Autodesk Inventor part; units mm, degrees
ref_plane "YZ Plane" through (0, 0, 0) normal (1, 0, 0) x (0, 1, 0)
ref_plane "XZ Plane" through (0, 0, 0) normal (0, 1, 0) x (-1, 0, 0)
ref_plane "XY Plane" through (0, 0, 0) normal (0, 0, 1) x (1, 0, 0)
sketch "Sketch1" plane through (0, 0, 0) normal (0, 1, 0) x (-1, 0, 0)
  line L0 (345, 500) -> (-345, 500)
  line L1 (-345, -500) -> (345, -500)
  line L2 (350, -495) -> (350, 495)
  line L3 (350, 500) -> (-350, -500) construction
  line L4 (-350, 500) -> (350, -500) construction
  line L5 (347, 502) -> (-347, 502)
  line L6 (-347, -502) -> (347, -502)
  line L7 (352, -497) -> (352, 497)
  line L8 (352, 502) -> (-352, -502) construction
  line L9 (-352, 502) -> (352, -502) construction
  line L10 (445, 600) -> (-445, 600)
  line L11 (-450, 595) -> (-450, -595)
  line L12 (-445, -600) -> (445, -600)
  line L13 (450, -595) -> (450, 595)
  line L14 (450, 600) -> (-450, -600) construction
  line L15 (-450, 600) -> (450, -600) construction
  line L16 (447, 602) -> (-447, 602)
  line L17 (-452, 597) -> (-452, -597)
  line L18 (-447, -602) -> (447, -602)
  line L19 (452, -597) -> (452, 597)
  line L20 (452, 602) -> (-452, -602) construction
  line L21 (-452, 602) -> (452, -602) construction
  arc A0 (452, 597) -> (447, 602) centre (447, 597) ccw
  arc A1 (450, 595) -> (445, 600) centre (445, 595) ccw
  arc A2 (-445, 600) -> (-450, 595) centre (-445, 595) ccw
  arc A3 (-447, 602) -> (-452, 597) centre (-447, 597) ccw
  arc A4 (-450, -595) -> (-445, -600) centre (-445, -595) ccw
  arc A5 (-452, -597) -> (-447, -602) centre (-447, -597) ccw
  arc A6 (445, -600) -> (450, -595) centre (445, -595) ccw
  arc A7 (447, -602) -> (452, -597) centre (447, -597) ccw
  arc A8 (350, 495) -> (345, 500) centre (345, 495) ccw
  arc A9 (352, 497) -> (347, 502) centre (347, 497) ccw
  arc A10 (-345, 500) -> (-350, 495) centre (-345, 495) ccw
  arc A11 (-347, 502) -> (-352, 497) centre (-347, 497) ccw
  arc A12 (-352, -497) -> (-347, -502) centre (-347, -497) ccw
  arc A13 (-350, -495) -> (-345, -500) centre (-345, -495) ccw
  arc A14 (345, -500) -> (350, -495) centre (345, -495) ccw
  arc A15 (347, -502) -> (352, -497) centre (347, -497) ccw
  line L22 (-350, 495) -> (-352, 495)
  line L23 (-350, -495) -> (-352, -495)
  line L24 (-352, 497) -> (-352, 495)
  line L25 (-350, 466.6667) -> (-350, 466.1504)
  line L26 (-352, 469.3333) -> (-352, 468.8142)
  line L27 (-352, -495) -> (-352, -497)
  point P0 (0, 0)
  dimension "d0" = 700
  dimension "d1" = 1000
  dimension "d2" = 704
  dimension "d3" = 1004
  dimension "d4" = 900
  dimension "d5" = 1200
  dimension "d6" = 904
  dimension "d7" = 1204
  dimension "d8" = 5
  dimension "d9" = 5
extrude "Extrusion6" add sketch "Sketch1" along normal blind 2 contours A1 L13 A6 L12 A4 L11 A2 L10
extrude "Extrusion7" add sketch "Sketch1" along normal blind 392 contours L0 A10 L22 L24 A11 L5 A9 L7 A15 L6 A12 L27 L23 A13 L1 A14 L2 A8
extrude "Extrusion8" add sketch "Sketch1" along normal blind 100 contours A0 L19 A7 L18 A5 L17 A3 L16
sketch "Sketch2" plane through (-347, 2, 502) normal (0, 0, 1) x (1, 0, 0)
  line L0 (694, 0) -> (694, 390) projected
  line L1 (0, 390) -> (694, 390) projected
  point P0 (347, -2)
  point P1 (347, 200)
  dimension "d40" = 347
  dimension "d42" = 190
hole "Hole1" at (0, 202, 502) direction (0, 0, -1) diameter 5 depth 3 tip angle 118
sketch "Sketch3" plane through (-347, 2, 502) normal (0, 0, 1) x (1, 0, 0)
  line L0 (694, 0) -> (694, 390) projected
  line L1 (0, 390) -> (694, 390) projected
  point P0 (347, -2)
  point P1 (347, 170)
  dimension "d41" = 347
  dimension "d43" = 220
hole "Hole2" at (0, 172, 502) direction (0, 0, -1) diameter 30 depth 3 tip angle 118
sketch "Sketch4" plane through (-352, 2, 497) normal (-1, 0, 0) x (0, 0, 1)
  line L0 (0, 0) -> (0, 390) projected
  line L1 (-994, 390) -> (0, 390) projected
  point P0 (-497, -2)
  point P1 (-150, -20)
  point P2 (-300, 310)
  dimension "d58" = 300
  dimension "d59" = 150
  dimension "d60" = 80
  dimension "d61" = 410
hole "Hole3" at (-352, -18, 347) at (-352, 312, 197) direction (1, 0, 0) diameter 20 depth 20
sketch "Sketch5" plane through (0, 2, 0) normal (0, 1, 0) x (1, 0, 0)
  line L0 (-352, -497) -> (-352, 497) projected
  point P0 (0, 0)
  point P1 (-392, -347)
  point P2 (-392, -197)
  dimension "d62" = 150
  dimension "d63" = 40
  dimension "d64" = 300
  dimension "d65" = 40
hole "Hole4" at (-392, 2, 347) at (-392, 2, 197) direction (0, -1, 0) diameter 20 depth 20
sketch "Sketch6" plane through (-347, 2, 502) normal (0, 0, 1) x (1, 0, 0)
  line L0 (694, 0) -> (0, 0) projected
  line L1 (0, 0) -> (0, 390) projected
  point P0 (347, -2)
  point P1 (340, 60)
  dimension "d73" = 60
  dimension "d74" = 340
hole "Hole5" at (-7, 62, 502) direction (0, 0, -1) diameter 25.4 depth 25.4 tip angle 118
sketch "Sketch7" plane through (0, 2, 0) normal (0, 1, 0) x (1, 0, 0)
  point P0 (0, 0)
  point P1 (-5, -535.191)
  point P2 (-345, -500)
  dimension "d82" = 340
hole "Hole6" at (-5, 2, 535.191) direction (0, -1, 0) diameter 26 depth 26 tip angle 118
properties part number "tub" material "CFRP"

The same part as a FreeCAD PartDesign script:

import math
import FreeCAD as App
import Part
import Sketcher
from FreeCAD import Vector
Q = App.Units.Quantity

doc = App.newDocument("Part")
body = doc.addObject("PartDesign::Body", "Body")

sketch1 = doc.addObject("Sketcher::SketchObject", "Sketch")
body.addObject(sketch1)
sketch1.AttachmentSupport = (doc.XZ_Plane, [""])
sketch1.MapMode = "FlatFace"
sketch1.addGeometry([
    Part.ArcOfCircle(Part.Circle(Vector(-445, 595, 0), Vector(0, 0, 1), 5), math.radians(90), math.radians(180)),
    Part.LineSegment(Vector(-445, 600, 0), Vector(445, 600, 0)),
    Part.ArcOfCircle(Part.Circle(Vector(445, 595, 0), Vector(0, 0, 1), 5), math.radians(0), math.radians(90)),
    Part.LineSegment(Vector(450, 595, 0), Vector(450, -595, 0)),
    Part.ArcOfCircle(Part.Circle(Vector(445, -595, 0), Vector(0, 0, 1), 5), math.radians(-90), math.radians(0)),
    Part.LineSegment(Vector(445, -600, 0), Vector(-445, -600, 0)),
    Part.ArcOfCircle(Part.Circle(Vector(-445, -595, 0), Vector(0, 0, 1), 5), math.radians(180), math.radians(270)),
    Part.LineSegment(Vector(-450, -595, 0), Vector(-450, 595, 0)),
    Part.ArcOfCircle(Part.Circle(Vector(-345, 495, 0), Vector(0, 0, 1), 5), math.radians(90), math.radians(180)),
    Part.LineSegment(Vector(-345, 500, 0), Vector(345, 500, 0)),
    Part.ArcOfCircle(Part.Circle(Vector(345, 495, 0), Vector(0, 0, 1), 5), math.radians(0), math.radians(90)),
    Part.LineSegment(Vector(350, 495, 0), Vector(352, 495, 0)),
    Part.LineSegment(Vector(352, 495, 0), Vector(352, 497, 0)),
    Part.ArcOfCircle(Part.Circle(Vector(347, 497, 0), Vector(0, 0, 1), 5), math.radians(0), math.radians(90)),
    Part.LineSegment(Vector(347, 502, 0), Vector(-347, 502, 0)),
    Part.ArcOfCircle(Part.Circle(Vector(-347, 497, 0), Vector(0, 0, 1), 5), math.radians(90), math.radians(180)),
    Part.LineSegment(Vector(-352, 497, 0), Vector(-352, -497, 0)),
    Part.ArcOfCircle(Part.Circle(Vector(-347, -497, 0), Vector(0, 0, 1), 5), math.radians(180), math.radians(270)),
    Part.LineSegment(Vector(-347, -502, 0), Vector(347, -502, 0)),
    Part.ArcOfCircle(Part.Circle(Vector(347, -497, 0), Vector(0, 0, 1), 5), math.radians(-90), math.radians(0)),
    Part.LineSegment(Vector(352, -497, 0), Vector(352, -495, 0)),
    Part.LineSegment(Vector(352, -495, 0), Vector(350, -495, 0)),
    Part.ArcOfCircle(Part.Circle(Vector(345, -495, 0), Vector(0, 0, 1), 5), math.radians(-90), math.radians(0)),
    Part.LineSegment(Vector(345, -500, 0), Vector(-345, -500, 0)),
    Part.ArcOfCircle(Part.Circle(Vector(-345, -495, 0), Vector(0, 0, 1), 5), math.radians(180), math.radians(270)),
    Part.LineSegment(Vector(-350, -495, 0), Vector(-350, 495, 0)),
], False)
sketch1.addConstraint([
    Sketcher.Constraint("Tangent", 0, 1, 1, 1),
    Sketcher.Constraint("Tangent", 1, 2, 2, 2),
    Sketcher.Constraint("Tangent", 2, 1, 3, 1),
    Sketcher.Constraint("Tangent", 3, 2, 4, 2),
    Sketcher.Constraint("Tangent", 4, 1, 5, 1),
    Sketcher.Constraint("Tangent", 5, 2, 6, 2),
    Sketcher.Constraint("Tangent", 6, 1, 7, 1),
    Sketcher.Constraint("Tangent", 7, 2, 0, 2),
    Sketcher.Constraint("Tangent", 8, 1, 9, 1),
    Sketcher.Constraint("Tangent", 9, 2, 10, 2),
    Sketcher.Constraint("Coincident", 10, 1, 11, 1),
    Sketcher.Constraint("Coincident", 11, 2, 12, 1),
    Sketcher.Constraint("Tangent", 12, 2, 13, 1),
    Sketcher.Constraint("Tangent", 13, 2, 14, 1),
    Sketcher.Constraint("Tangent", 14, 2, 15, 1),
    Sketcher.Constraint("Tangent", 15, 2, 16, 1),
    Sketcher.Constraint("Tangent", 16, 2, 17, 1),
    Sketcher.Constraint("Tangent", 17, 2, 18, 1),
    Sketcher.Constraint("Tangent", 18, 2, 19, 1),
    Sketcher.Constraint("Tangent", 19, 2, 20, 1),
    Sketcher.Constraint("Coincident", 20, 2, 21, 1),
    Sketcher.Constraint("Coincident", 21, 2, 22, 2),
    Sketcher.Constraint("Tangent", 22, 1, 23, 1),
    Sketcher.Constraint("Tangent", 23, 2, 24, 2),
    Sketcher.Constraint("Tangent", 24, 1, 25, 1),
    Sketcher.Constraint("Tangent", 25, 2, 8, 2),
    Sketcher.Constraint("Horizontal", 1),
    Sketcher.Constraint("Vertical", 3),
    Sketcher.Constraint("Horizontal", 5),
    Sketcher.Constraint("Vertical", 7),
    Sketcher.Constraint("Horizontal", 9),
    Sketcher.Constraint("Horizontal", 11),
    Sketcher.Constraint("Vertical", 12),
    Sketcher.Constraint("Horizontal", 14),
    Sketcher.Constraint("Vertical", 16),
    Sketcher.Constraint("Horizontal", 18),
    Sketcher.Constraint("Vertical", 20),
    Sketcher.Constraint("Horizontal", 21),
    Sketcher.Constraint("Horizontal", 23),
    Sketcher.Constraint("Vertical", 25),
    Sketcher.Constraint("Equal", 0, 2),
    Sketcher.Constraint("Equal", 2, 4),
    Sketcher.Constraint("Equal", 4, 6),
    Sketcher.Constraint("Equal", 6, 8),
    Sketcher.Constraint("Equal", 8, 10),
    Sketcher.Constraint("Equal", 10, 13),
    Sketcher.Constraint("Equal", 13, 15),
    Sketcher.Constraint("Equal", 15, 17),
    Sketcher.Constraint("Equal", 17, 19),
    Sketcher.Constraint("Equal", 19, 22),
    Sketcher.Constraint("Equal", 22, 24),
    Sketcher.Constraint("Symmetric", 0, 3, 4, 3, -1, 1),
    Sketcher.Constraint("Symmetric", 13, 3, 17, 3, -1, 1),
    Sketcher.Constraint("Symmetric", 8, 3, 22, 3, -1, 1),
    Sketcher.Constraint("Symmetric", 10, 1, 24, 1, -1, 1),
    Sketcher.Constraint("Symmetric", 11, 2, 20, 2, -1),
    Sketcher.Constraint("Equal", 21, 12),
    Sketcher.Constraint("Radius", 0, Q("5 mm")),
    Sketcher.Constraint("DistanceX", 1, 1, 1, 2, Q("890 mm")),
    Sketcher.Constraint("DistanceX", 9, 1, 9, 2, Q("690 mm")),
    Sketcher.Constraint("DistanceX", 11, 1, 11, 2, Q("2 mm")),
    Sketcher.Constraint("DistanceY", 3, 2, 3, 1, Q("1190 mm")),
    Sketcher.Constraint("DistanceY", 16, 2, 16, 1, Q("994 mm")),
])
pad1 = doc.addObject("PartDesign::Pad", "Pad")
body.addObject(pad1)
pad1.Profile = sketch1
pad1.Length = 2
pad1.Reversed = True

sketch2 = doc.addObject("Sketcher::SketchObject", "Sketch001")
body.addObject(sketch2)
sketch2.AttachmentSupport = (doc.XZ_Plane, [""])
sketch2.MapMode = "FlatFace"
sketch2.addGeometry([
    Part.LineSegment(Vector(345, 500, 0), Vector(-345, 500, 0)),
    Part.ArcOfCircle(Part.Circle(Vector(-345, 495, 0), Vector(0, 0, 1), 5), math.radians(90), math.radians(180)),
    Part.LineSegment(Vector(-350, 495, 0), Vector(-350, -495, 0)),
    Part.ArcOfCircle(Part.Circle(Vector(-345, -495, 0), Vector(0, 0, 1), 5), math.radians(180), math.radians(270)),
    Part.LineSegment(Vector(-345, -500, 0), Vector(345, -500, 0)),
    Part.ArcOfCircle(Part.Circle(Vector(345, -495, 0), Vector(0, 0, 1), 5), math.radians(-90), math.radians(0)),
    Part.LineSegment(Vector(350, -495, 0), Vector(352, -495, 0)),
    Part.LineSegment(Vector(352, -495, 0), Vector(352, -497, 0)),
    Part.ArcOfCircle(Part.Circle(Vector(347, -497, 0), Vector(0, 0, 1), 5), math.radians(-90), math.radians(0)),
    Part.LineSegment(Vector(347, -502, 0), Vector(-347, -502, 0)),
    Part.ArcOfCircle(Part.Circle(Vector(-347, -497, 0), Vector(0, 0, 1), 5), math.radians(180), math.radians(270)),
    Part.LineSegment(Vector(-352, -497, 0), Vector(-352, 497, 0)),
    Part.ArcOfCircle(Part.Circle(Vector(-347, 497, 0), Vector(0, 0, 1), 5), math.radians(90), math.radians(180)),
    Part.LineSegment(Vector(-347, 502, 0), Vector(347, 502, 0)),
    Part.ArcOfCircle(Part.Circle(Vector(347, 497, 0), Vector(0, 0, 1), 5), math.radians(0), math.radians(90)),
    Part.LineSegment(Vector(352, 497, 0), Vector(352, 495, 0)),
    Part.LineSegment(Vector(352, 495, 0), Vector(350, 495, 0)),
    Part.ArcOfCircle(Part.Circle(Vector(345, 495, 0), Vector(0, 0, 1), 5), math.radians(0), math.radians(90)),
], False)
sketch2.addConstraint([
    Sketcher.Constraint("Tangent", 0, 2, 1, 1),
    Sketcher.Constraint("Tangent", 1, 2, 2, 1),
    Sketcher.Constraint("Tangent", 2, 2, 3, 1),
    Sketcher.Constraint("Tangent", 3, 2, 4, 1),
    Sketcher.Constraint("Tangent", 4, 2, 5, 1),
    Sketcher.Constraint("Coincident", 5, 2, 6, 1),
    Sketcher.Constraint("Coincident", 6, 2, 7, 1),
    Sketcher.Constraint("Tangent", 7, 2, 8, 2),
    Sketcher.Constraint("Tangent", 8, 1, 9, 1),
    Sketcher.Constraint("Tangent", 9, 2, 10, 2),
    Sketcher.Constraint("Tangent", 10, 1, 11, 1),
    Sketcher.Constraint("Tangent", 11, 2, 12, 2),
    Sketcher.Constraint("Tangent", 12, 1, 13, 1),
    Sketcher.Constraint("Tangent", 13, 2, 14, 2),
    Sketcher.Constraint("Tangent", 14, 1, 15, 1),
    Sketcher.Constraint("Coincident", 15, 2, 16, 1),
    Sketcher.Constraint("Coincident", 16, 2, 17, 1),
    Sketcher.Constraint("Tangent", 17, 2, 0, 1),
    Sketcher.Constraint("Horizontal", 0),
    Sketcher.Constraint("Vertical", 2),
    Sketcher.Constraint("Horizontal", 4),
    Sketcher.Constraint("Horizontal", 6),
    Sketcher.Constraint("Vertical", 7),
    Sketcher.Constraint("Horizontal", 9),
    Sketcher.Constraint("Vertical", 11),
    Sketcher.Constraint("Horizontal", 13),
    Sketcher.Constraint("Vertical", 15),
    Sketcher.Constraint("Horizontal", 16),
    Sketcher.Constraint("Equal", 1, 3),
    Sketcher.Constraint("Equal", 3, 5),
    Sketcher.Constraint("Equal", 5, 8),
    Sketcher.Constraint("Equal", 8, 10),
    Sketcher.Constraint("Equal", 10, 12),
    Sketcher.Constraint("Equal", 12, 14),
    Sketcher.Constraint("Equal", 14, 17),
    Sketcher.Constraint("Symmetric", 1, 3, 5, 3, -1, 1),
    Sketcher.Constraint("Symmetric", 8, 3, 12, 3, -1, 1),
    Sketcher.Constraint("Symmetric", 2, 2, 16, 2, -1, 1),
    Sketcher.Constraint("Symmetric", 6, 2, 15, 2, -1),
    Sketcher.Constraint("Equal", 16, 7),
    Sketcher.Constraint("Radius", 1, Q("5 mm")),
    Sketcher.Constraint("DistanceX", 0, 2, 0, 1, Q("690 mm")),
    Sketcher.Constraint("DistanceX", 6, 1, 6, 2, Q("2 mm")),
    Sketcher.Constraint("DistanceY", 2, 2, 2, 1, Q("990 mm")),
])
pad2 = doc.addObject("PartDesign::Pad", "Pad001")
body.addObject(pad2)
pad2.Profile = sketch2
pad2.Length = 392
pad2.Reversed = True

sketch3 = doc.addObject("Sketcher::SketchObject", "Sketch002")
body.addObject(sketch3)
sketch3.AttachmentSupport = (doc.XZ_Plane, [""])
sketch3.MapMode = "FlatFace"
sketch3.addGeometry([
    Part.ArcOfCircle(Part.Circle(Vector(-447, 597, 0), Vector(0, 0, 1), 5), math.radians(90), math.radians(180)),
    Part.LineSegment(Vector(-447, 602, 0), Vector(447, 602, 0)),
    Part.ArcOfCircle(Part.Circle(Vector(447, 597, 0), Vector(0, 0, 1), 5), math.radians(0), math.radians(90)),
    Part.LineSegment(Vector(452, 597, 0), Vector(452, -597, 0)),
    Part.ArcOfCircle(Part.Circle(Vector(447, -597, 0), Vector(0, 0, 1), 5), math.radians(-90), math.radians(0)),
    Part.LineSegment(Vector(447, -602, 0), Vector(-447, -602, 0)),
    Part.ArcOfCircle(Part.Circle(Vector(-447, -597, 0), Vector(0, 0, 1), 5), math.radians(180), math.radians(270)),
    Part.LineSegment(Vector(-452, -597, 0), Vector(-452, 597, 0)),
    Part.LineSegment(Vector(445, 600, 0), Vector(-445, 600, 0)),
    Part.ArcOfCircle(Part.Circle(Vector(-445, 595, 0), Vector(0, 0, 1), 5), math.radians(90), math.radians(180)),
    Part.LineSegment(Vector(-450, 595, 0), Vector(-450, -595, 0)),
    Part.ArcOfCircle(Part.Circle(Vector(-445, -595, 0), Vector(0, 0, 1), 5), math.radians(180), math.radians(270)),
    Part.LineSegment(Vector(-445, -600, 0), Vector(445, -600, 0)),
    Part.ArcOfCircle(Part.Circle(Vector(445, -595, 0), Vector(0, 0, 1), 5), math.radians(-90), math.radians(0)),
    Part.LineSegment(Vector(450, -595, 0), Vector(450, 595, 0)),
    Part.ArcOfCircle(Part.Circle(Vector(445, 595, 0), Vector(0, 0, 1), 5), math.radians(0), math.radians(90)),
], False)
sketch3.addConstraint([
    Sketcher.Constraint("Tangent", 0, 1, 1, 1),
    Sketcher.Constraint("Tangent", 1, 2, 2, 2),
    Sketcher.Constraint("Tangent", 2, 1, 3, 1),
    Sketcher.Constraint("Tangent", 3, 2, 4, 2),
    Sketcher.Constraint("Tangent", 4, 1, 5, 1),
    Sketcher.Constraint("Tangent", 5, 2, 6, 2),
    Sketcher.Constraint("Tangent", 6, 1, 7, 1),
    Sketcher.Constraint("Tangent", 7, 2, 0, 2),
    Sketcher.Constraint("Tangent", 8, 2, 9, 1),
    Sketcher.Constraint("Tangent", 9, 2, 10, 1),
    Sketcher.Constraint("Tangent", 10, 2, 11, 1),
    Sketcher.Constraint("Tangent", 11, 2, 12, 1),
    Sketcher.Constraint("Tangent", 12, 2, 13, 1),
    Sketcher.Constraint("Tangent", 13, 2, 14, 1),
    Sketcher.Constraint("Tangent", 14, 2, 15, 1),
    Sketcher.Constraint("Tangent", 15, 2, 8, 1),
    Sketcher.Constraint("Horizontal", 1),
    Sketcher.Constraint("Vertical", 3),
    Sketcher.Constraint("Horizontal", 5),
    Sketcher.Constraint("Vertical", 7),
    Sketcher.Constraint("Horizontal", 8),
    Sketcher.Constraint("Vertical", 10),
    Sketcher.Constraint("Horizontal", 12),
    Sketcher.Constraint("Vertical", 14),
    Sketcher.Constraint("Equal", 0, 2),
    Sketcher.Constraint("Equal", 2, 4),
    Sketcher.Constraint("Equal", 4, 6),
    Sketcher.Constraint("Equal", 6, 9),
    Sketcher.Constraint("Equal", 9, 11),
    Sketcher.Constraint("Equal", 11, 13),
    Sketcher.Constraint("Equal", 13, 15),
    Sketcher.Constraint("Symmetric", 0, 3, 4, 3, -1, 1),
    Sketcher.Constraint("Symmetric", 9, 3, 13, 3, -1, 1),
    Sketcher.Constraint("Radius", 0, Q("5 mm")),
    Sketcher.Constraint("DistanceX", 1, 1, 1, 2, Q("894 mm")),
    Sketcher.Constraint("DistanceX", 8, 2, 8, 1, Q("890 mm")),
    Sketcher.Constraint("DistanceY", 3, 2, 3, 1, Q("1194 mm")),
    Sketcher.Constraint("DistanceY", 10, 2, 10, 1, Q("1190 mm")),
])
pad3 = doc.addObject("PartDesign::Pad", "Pad002")
body.addObject(pad3)
pad3.Profile = sketch3
pad3.Length = 100
pad3.Reversed = True

sketch4 = doc.addObject("Sketcher::SketchObject", "Sketch003")
body.addObject(sketch4)
sketch4.AttachmentSupport = (doc.XY_Plane, [""])
sketch4.MapMode = "FlatFace"
sketch4.AttachmentOffset = App.Placement(Vector(0, 0, 502), App.Rotation())
sketch4.addGeometry(Part.Circle(Vector(0, 202, 0), Vector(0, 0, 1), 2.5), False)
sketch4.addConstraint([
    Sketcher.Constraint("PointOnObject", 0, 3, -2),
    Sketcher.Constraint("Diameter", 0, Q("5 mm")),
    Sketcher.Constraint("DistanceY", -1, 1, 0, 3, Q("202 mm")),
])
doc.recompute()
hole = doc.addObject("PartDesign::Hole", "Hole")
body.addObject(hole)
hole.Profile = sketch4
hole.ThreadType = "None"
hole.Diameter = 5
hole.DepthType = "Dimension"
hole.Depth = 3
hole.DrillPoint = "Angled"
hole.DrillPointAngle = 118

sketch5 = doc.addObject("Sketcher::SketchObject", "Sketch004")
body.addObject(sketch5)
sketch5.AttachmentSupport = (doc.XY_Plane, [""])
sketch5.MapMode = "FlatFace"
sketch5.AttachmentOffset = App.Placement(Vector(0, 0, 502), App.Rotation())
sketch5.addGeometry(Part.Circle(Vector(0, 172, 0), Vector(0, 0, 1), 15), False)
sketch5.addConstraint([
    Sketcher.Constraint("PointOnObject", 0, 3, -2),
    Sketcher.Constraint("Diameter", 0, Q("30 mm")),
    Sketcher.Constraint("DistanceY", -1, 1, 0, 3, Q("172 mm")),
])
doc.recompute()
hole2 = doc.addObject("PartDesign::Hole", "Hole001")
body.addObject(hole2)
hole2.Profile = sketch5
hole2.ThreadType = "None"
hole2.Diameter = 30
hole2.DepthType = "Dimension"
hole2.Depth = 3
hole2.DrillPoint = "Angled"
hole2.DrillPointAngle = 118

sketch6 = doc.addObject("Sketcher::SketchObject", "Sketch005")
body.addObject(sketch6)
sketch6.AttachmentSupport = (doc.YZ_Plane, [""])
sketch6.MapMode = "FlatFace"
sketch6.AttachmentOffset = App.Placement(Vector(0, 0, -352), App.Rotation())
sketch6.addGeometry([
    Part.Circle(Vector(-18, 347, 0), Vector(0, 0, 1), 10),
    Part.Circle(Vector(312, 197, 0), Vector(0, 0, 1), 10),
], False)
sketch6.addConstraint([
    Sketcher.Constraint("Equal", 0, 1),
    Sketcher.Constraint("Diameter", 0, Q("20 mm")),
    Sketcher.Constraint("DistanceX", 0, 3, -1, 1, Q("18 mm")),
    Sketcher.Constraint("DistanceY", -1, 1, 0, 3, Q("347 mm")),
    Sketcher.Constraint("DistanceX", -1, 1, 1, 3, Q("312 mm")),
    Sketcher.Constraint("DistanceY", -1, 1, 1, 3, Q("197 mm")),
])
doc.recompute()
hole3 = doc.addObject("PartDesign::Hole", "Hole002")
body.addObject(hole3)
hole3.Profile = sketch6
hole3.ThreadType = "None"
hole3.Diameter = 20
hole3.DepthType = "Dimension"
hole3.Depth = 20
hole3.DrillPoint = "Flat"
hole3.Reversed = True

sketch7 = doc.addObject("Sketcher::SketchObject", "Sketch006")
body.addObject(sketch7)
sketch7.AttachmentSupport = (doc.XZ_Plane, [""])
sketch7.MapMode = "FlatFace"
sketch7.AttachmentOffset = App.Placement(Vector(0, 0, -2), App.Rotation())
sketch7.addGeometry([
    Part.Circle(Vector(-392, 347, 0), Vector(0, 0, 1), 10),
    Part.Circle(Vector(-392, 197, 0), Vector(0, 0, 1), 10),
], False)
sketch7.addConstraint([
    Sketcher.Constraint("Equal", 0, 1),
    Sketcher.Constraint("Vertical", 0, 3, 1, 3),
    Sketcher.Constraint("Diameter", 0, Q("20 mm")),
    Sketcher.Constraint("DistanceX", 0, 3, -1, 1, Q("392 mm")),
    Sketcher.Constraint("DistanceY", -1, 1, 0, 3, Q("347 mm")),
    Sketcher.Constraint("DistanceY", -1, 1, 1, 3, Q("197 mm")),
])
doc.recompute()
hole4 = doc.addObject("PartDesign::Hole", "Hole003")
body.addObject(hole4)
hole4.Profile = sketch7
hole4.ThreadType = "None"
hole4.Diameter = 20
hole4.DepthType = "Dimension"
hole4.Depth = 20
hole4.DrillPoint = "Flat"
hole4.Reversed = True

sketch8 = doc.addObject("Sketcher::SketchObject", "Sketch007")
body.addObject(sketch8)
sketch8.AttachmentSupport = (doc.XY_Plane, [""])
sketch8.MapMode = "FlatFace"
sketch8.AttachmentOffset = App.Placement(Vector(0, 0, 502), App.Rotation())
sketch8.addGeometry(Part.Circle(Vector(-7, 62, 0), Vector(0, 0, 1), 13), False)
sketch8.addConstraint([
    Sketcher.Constraint("Diameter", 0, Q("25.4 mm")),
    Sketcher.Constraint("DistanceX", 0, 3, -1, 1, Q("7 mm")),
    Sketcher.Constraint("DistanceY", -1, 1, 0, 3, Q("62 mm")),
])
doc.recompute()
hole5 = doc.addObject("PartDesign::Hole", "Hole004")
body.addObject(hole5)
hole5.Profile = sketch8
hole5.ThreadType = "None"
hole5.Diameter = 25.4
hole5.DepthType = "Dimension"
hole5.Depth = 25.4
hole5.DrillPoint = "Angled"
hole5.DrillPointAngle = 118

sketch9 = doc.addObject("Sketcher::SketchObject", "Sketch008")
body.addObject(sketch9)
sketch9.AttachmentSupport = (doc.XZ_Plane, [""])
sketch9.MapMode = "FlatFace"
sketch9.AttachmentOffset = App.Placement(Vector(0, 0, -2), App.Rotation())
sketch9.addGeometry(Part.Circle(Vector(-5, 535, 0), Vector(0, 0, 1), 13), False)
sketch9.addConstraint([
    Sketcher.Constraint("Diameter", 0, Q("26 mm")),
    Sketcher.Constraint("DistanceX", 0, 3, -1, 1, Q("5 mm")),
    Sketcher.Constraint("DistanceY", -1, 1, 0, 3, Q("535.191 mm")),
])
doc.recompute()
hole6 = doc.addObject("PartDesign::Hole", "Hole005")
body.addObject(hole6)
hole6.Profile = sketch9
hole6.ThreadType = "None"
hole6.Diameter = 26
hole6.DepthType = "Dimension"
hole6.Depth = 26
hole6.DrillPoint = "Angled"
hole6.DrillPointAngle = 118
hole6.Reversed = True

doc.recompute()
